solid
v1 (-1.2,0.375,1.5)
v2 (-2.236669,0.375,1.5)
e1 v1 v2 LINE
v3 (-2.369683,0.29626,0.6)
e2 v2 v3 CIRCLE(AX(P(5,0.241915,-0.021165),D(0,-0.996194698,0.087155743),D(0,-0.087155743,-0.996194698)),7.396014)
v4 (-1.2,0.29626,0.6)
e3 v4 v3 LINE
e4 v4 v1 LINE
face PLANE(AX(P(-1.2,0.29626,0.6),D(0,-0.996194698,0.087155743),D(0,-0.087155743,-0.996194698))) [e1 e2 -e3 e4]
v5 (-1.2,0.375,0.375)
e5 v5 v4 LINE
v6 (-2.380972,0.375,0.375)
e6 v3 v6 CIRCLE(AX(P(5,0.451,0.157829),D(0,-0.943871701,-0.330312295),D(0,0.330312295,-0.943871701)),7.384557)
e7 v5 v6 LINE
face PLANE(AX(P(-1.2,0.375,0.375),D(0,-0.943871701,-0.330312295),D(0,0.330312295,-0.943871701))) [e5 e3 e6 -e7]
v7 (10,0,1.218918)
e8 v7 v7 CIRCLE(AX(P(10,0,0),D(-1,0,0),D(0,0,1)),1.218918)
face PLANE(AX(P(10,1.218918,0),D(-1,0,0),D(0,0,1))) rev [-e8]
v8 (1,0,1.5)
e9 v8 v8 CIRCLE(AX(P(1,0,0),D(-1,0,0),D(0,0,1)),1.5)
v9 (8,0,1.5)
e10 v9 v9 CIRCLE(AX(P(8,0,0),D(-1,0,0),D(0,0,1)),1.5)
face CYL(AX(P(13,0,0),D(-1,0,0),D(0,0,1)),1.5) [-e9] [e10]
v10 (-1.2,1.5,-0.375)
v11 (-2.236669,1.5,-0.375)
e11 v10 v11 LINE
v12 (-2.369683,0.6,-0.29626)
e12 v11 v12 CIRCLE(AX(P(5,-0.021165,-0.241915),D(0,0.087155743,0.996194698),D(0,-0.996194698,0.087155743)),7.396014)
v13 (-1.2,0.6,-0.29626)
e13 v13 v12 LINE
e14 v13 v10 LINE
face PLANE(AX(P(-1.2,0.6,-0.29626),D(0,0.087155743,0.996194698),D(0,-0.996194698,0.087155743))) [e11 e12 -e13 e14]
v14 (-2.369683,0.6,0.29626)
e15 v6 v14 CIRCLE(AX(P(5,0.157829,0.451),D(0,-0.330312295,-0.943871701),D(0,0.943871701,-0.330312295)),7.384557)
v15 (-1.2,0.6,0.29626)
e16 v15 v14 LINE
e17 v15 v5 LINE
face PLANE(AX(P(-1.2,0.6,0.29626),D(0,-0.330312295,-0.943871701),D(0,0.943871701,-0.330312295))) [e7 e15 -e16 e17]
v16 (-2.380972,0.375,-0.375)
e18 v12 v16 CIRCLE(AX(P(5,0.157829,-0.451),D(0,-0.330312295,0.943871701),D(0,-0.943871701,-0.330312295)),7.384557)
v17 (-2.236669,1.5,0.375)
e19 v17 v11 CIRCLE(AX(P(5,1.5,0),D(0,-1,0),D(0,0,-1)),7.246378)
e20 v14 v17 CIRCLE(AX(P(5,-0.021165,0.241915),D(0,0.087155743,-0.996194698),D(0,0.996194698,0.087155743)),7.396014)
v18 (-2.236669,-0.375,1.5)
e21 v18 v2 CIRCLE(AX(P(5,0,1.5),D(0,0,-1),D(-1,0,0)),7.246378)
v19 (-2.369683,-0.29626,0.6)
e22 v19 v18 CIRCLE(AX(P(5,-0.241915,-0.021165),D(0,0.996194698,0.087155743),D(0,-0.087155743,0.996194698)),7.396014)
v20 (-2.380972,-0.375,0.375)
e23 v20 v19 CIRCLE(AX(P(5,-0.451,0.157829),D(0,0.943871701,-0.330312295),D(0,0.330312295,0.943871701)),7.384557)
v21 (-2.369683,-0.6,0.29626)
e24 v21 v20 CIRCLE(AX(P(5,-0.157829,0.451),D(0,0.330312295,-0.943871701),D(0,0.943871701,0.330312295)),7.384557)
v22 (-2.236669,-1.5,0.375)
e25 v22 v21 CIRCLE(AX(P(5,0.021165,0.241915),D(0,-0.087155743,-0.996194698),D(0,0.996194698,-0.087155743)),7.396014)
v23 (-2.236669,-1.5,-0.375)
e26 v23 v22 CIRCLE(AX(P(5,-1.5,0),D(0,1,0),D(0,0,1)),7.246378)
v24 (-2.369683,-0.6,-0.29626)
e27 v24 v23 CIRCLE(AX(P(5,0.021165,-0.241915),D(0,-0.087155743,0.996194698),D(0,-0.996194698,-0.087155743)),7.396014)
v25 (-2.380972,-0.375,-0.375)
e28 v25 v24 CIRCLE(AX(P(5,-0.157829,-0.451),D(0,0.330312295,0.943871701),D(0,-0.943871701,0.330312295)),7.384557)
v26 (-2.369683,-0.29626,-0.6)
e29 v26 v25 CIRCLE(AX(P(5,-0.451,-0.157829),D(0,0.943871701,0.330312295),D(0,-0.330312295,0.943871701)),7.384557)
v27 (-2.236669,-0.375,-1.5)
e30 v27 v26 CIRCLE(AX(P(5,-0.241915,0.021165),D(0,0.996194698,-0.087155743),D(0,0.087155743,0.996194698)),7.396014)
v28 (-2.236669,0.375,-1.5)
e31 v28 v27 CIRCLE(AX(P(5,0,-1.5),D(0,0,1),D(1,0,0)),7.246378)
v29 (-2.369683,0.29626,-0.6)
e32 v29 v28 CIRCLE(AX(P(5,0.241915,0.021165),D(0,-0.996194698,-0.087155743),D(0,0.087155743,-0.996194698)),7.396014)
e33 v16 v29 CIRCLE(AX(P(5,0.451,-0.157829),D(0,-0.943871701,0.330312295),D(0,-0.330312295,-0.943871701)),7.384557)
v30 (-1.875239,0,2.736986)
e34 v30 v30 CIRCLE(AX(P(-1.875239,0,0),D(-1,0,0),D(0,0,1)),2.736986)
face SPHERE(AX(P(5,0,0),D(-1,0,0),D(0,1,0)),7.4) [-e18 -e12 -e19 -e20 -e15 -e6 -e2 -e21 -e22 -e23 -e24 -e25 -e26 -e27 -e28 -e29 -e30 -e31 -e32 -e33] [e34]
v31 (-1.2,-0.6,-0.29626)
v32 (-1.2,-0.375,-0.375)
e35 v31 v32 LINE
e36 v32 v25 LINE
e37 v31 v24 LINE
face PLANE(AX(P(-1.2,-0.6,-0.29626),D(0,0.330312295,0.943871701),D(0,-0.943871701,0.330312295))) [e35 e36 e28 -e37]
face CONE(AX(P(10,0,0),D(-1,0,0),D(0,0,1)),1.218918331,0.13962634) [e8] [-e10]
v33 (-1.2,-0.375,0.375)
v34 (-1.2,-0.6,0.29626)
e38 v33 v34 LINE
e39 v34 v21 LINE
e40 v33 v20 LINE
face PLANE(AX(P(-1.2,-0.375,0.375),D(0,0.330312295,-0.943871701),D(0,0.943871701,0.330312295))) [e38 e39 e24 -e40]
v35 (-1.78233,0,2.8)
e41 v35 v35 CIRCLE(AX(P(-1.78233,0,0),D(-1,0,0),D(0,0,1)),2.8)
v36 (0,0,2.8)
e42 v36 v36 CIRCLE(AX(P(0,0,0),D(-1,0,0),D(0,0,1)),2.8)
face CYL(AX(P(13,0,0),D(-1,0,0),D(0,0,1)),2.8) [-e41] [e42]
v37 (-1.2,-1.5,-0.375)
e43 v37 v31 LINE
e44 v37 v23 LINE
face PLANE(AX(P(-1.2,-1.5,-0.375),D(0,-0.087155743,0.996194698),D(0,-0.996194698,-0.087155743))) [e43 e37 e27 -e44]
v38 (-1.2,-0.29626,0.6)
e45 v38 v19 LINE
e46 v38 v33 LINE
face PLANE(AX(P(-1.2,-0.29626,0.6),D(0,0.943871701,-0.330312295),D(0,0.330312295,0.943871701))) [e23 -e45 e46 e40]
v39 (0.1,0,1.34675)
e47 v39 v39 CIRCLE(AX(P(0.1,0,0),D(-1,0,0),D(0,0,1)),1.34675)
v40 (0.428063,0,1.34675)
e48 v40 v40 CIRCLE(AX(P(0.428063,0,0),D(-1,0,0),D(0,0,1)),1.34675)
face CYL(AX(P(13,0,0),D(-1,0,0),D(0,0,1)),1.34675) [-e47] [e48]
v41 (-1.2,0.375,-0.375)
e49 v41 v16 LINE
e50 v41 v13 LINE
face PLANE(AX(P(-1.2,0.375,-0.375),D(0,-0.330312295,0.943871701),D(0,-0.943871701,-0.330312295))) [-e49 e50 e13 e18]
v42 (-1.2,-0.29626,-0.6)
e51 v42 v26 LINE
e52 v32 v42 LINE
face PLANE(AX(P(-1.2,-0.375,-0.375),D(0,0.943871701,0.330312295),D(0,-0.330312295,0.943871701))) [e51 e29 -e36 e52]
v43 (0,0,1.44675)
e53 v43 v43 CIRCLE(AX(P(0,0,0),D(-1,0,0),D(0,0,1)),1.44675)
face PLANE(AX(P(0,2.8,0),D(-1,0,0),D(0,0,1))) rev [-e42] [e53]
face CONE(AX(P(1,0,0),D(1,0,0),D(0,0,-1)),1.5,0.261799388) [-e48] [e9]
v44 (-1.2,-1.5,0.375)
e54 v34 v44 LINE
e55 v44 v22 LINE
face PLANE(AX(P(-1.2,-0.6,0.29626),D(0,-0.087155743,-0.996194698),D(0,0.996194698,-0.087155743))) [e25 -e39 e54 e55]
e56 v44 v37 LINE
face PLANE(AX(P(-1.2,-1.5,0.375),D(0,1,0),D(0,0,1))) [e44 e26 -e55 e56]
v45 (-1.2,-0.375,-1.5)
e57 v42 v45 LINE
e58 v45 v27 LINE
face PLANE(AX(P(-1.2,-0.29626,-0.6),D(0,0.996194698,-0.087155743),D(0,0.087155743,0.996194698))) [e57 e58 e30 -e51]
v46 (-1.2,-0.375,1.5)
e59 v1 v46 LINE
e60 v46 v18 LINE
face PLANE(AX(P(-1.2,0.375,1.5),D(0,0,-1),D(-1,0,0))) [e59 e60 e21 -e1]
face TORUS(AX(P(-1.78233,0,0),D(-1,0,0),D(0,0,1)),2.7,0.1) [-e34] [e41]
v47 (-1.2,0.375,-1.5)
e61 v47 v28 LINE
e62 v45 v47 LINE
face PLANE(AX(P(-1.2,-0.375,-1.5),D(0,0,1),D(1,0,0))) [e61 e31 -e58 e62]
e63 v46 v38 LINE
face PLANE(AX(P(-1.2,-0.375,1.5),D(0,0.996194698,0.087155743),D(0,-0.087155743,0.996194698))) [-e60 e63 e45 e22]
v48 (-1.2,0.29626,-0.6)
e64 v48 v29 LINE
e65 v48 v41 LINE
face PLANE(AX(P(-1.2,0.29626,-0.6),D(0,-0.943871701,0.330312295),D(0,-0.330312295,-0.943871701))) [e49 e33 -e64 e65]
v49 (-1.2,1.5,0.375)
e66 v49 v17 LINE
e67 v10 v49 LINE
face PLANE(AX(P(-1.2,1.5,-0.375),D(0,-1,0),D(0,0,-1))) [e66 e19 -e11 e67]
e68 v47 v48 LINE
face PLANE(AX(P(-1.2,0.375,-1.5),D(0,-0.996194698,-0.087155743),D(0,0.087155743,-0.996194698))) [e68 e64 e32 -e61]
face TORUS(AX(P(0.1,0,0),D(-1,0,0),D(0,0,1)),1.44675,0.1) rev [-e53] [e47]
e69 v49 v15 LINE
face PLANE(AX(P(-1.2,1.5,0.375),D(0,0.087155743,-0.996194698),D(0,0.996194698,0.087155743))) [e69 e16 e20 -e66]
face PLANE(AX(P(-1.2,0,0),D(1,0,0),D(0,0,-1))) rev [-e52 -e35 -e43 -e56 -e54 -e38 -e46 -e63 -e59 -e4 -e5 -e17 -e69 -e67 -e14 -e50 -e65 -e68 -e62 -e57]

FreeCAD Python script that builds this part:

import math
import FreeCAD as App
import Part
import Sketcher
Q = App.Units.Quantity


def add_polygon(sketch, points):
    """Adds a closed chain of lines whose ends are joined by coincident constraints."""
    first, n = sketch.GeometryCount, len(points)
    for a, b in zip(points, points[1:] + points[:1]):
        sketch.addGeometry(Part.LineSegment(App.Vector(*a, 0), App.Vector(*b, 0)), False)
    for i in range(n):
        sketch.addConstraint(Sketcher.Constraint("Coincident", first + i, 2, first + (i + 1) % n, 1))

doc = App.newDocument("Part")
body = doc.addObject("PartDesign::Body", "Body")

sketch1 = doc.addObject("Sketcher::SketchObject", "Sketch")
body.addObject(sketch1)
sketch1.AttachmentSupport = (doc.XY_Plane, [""])
sketch1.MapMode = "FlatFace"
sketch1.addGeometry(Part.LineSegment(App.Vector(0, 2.8, 0), App.Vector(-1.78233, 2.8, 0)), False)
sketch1.addGeometry(Part.ArcOfCircle(Part.Circle(App.Vector(-1.78233, 2.7, 0), App.Vector(0, 0, 1), 0.1), math.radians(90), math.radians(158.292831)), False)
sketch1.addGeometry(Part.ArcOfCircle(Part.Circle(App.Vector(5, 0, 0), App.Vector(0, 0, 1), 7.4), math.radians(158.292831), math.radians(180)), False)
sketch1.addGeometry(Part.LineSegment(App.Vector(-2.4, 0, 0), App.Vector(10, 0, 0)), False)
sketch1.addGeometry(Part.LineSegment(App.Vector(10, 0, 0), App.Vector(10, 1.218918, 0)), False)
sketch1.addGeometry(Part.LineSegment(App.Vector(10, 1.218918, 0), App.Vector(8, 1.5, 0)), False)
sketch1.addGeometry(Part.LineSegment(App.Vector(8, 1.5, 0), App.Vector(1, 1.5, 0)), False)
sketch1.addGeometry(Part.LineSegment(App.Vector(1, 1.5, 0), App.Vector(0.428063, 1.34675, 0)), False)
sketch1.addGeometry(Part.LineSegment(App.Vector(0.428063, 1.34675, 0), App.Vector(0.1, 1.34675, 0)), False)
sketch1.addGeometry(Part.ArcOfCircle(Part.Circle(App.Vector(0.1, 1.44675, 0), App.Vector(0, 0, 1), 0.1), math.radians(180), math.radians(270)), False)
sketch1.addGeometry(Part.LineSegment(App.Vector(0, 1.44675, 0), App.Vector(0, 2.8, 0)), False)
sketch1.addConstraint(Sketcher.Constraint("Tangent", 0, 2, 1, 1))
sketch1.addConstraint(Sketcher.Constraint("Tangent", 1, 2, 2, 1))
sketch1.addConstraint(Sketcher.Constraint("Coincident", 2, 2, 3, 1))
sketch1.addConstraint(Sketcher.Constraint("Coincident", 3, 2, 4, 1))
sketch1.addConstraint(Sketcher.Constraint("Coincident", 4, 2, 5, 1))
sketch1.addConstraint(Sketcher.Constraint("Coincident", 5, 2, 6, 1))
sketch1.addConstraint(Sketcher.Constraint("Coincident", 6, 2, 7, 1))
sketch1.addConstraint(Sketcher.Constraint("Coincident", 7, 2, 8, 1))
sketch1.addConstraint(Sketcher.Constraint("Tangent", 8, 2, 9, 2))
sketch1.addConstraint(Sketcher.Constraint("Tangent", 9, 1, 10, 1))
sketch1.addConstraint(Sketcher.Constraint("Coincident", 10, 2, 0, 1))
sketch1.addConstraint(Sketcher.Constraint("Horizontal", 0))
sketch1.addConstraint(Sketcher.Constraint("Horizontal", 3))
sketch1.addConstraint(Sketcher.Constraint("Vertical", 4))
sketch1.addConstraint(Sketcher.Constraint("Horizontal", 6))
sketch1.addConstraint(Sketcher.Constraint("Horizontal", 8))
sketch1.addConstraint(Sketcher.Constraint("Vertical", 10))
sketch1.addConstraint(Sketcher.Constraint("Equal", 1, 9))
sketch1.addConstraint(Sketcher.Constraint("PointOnObject", 2, 3, -1))
sketch1.addConstraint(Sketcher.Constraint("PointOnObject", 2, 2, -1))
sketch1.addConstraint(Sketcher.Constraint("PointOnObject", 9, 1, -2))
sketch1.addConstraint(Sketcher.Constraint("Radius", 1, 0.1))
sketch1.addConstraint(Sketcher.Constraint("Radius", 2, 7.4))
sketch1.addConstraint(Sketcher.Constraint("DistanceX", 6, 2, 6, 1, 7.0))
sketch1.addConstraint(Sketcher.Constraint("Angle", 5, Q("172 deg")))
sketch1.addConstraint(Sketcher.Constraint("Angle", 7, Q("-165 deg")))
sketch1.addConstraint(Sketcher.Constraint("DistanceX", 3, 1, 3, 2, 12.4))
sketch1.addConstraint(Sketcher.Constraint("DistanceX", -1, 1, 2, 3, 5.0))
sketch1.addConstraint(Sketcher.Constraint("DistanceX", -1, 1, 5, 2, 8.0))
sketch1.addConstraint(Sketcher.Constraint("DistanceY", -1, 1, 1, 3, 2.7))
sketch1.addConstraint(Sketcher.Constraint("DistanceY", -1, 1, 5, 2, 1.5))
sketch1.addConstraint(Sketcher.Constraint("DistanceY", 10, 1, 10, 2, 1.35325))
revolution = doc.addObject("PartDesign::Revolution", "Revolution")
body.addObject(revolution)
revolution.Profile = sketch1
revolution.ReferenceAxis = (sketch1, ["H_Axis"])
revolution.Angle = 360

sketch2 = doc.addObject("Sketcher::SketchObject", "Sketch001")
body.addObject(sketch2)
sketch2.AttachmentSupport = (doc.YZ_Plane, [""])
sketch2.MapMode = "FlatFace"
sketch2.AttachmentOffset = App.Placement(App.Vector(0, 0, -2.4), App.Rotation())
add_polygon(sketch2, [(0.375, 1.5), (-0.375, 1.5), (-0.29626, 0.6), (-0.375, 0.375), (-0.6, 0.29626), (-1.5, 0.375), (-1.5, -0.375), (-0.6, -0.29626), (-0.375, -0.375), (-0.29626, -0.6), (-0.375, -1.5), (0.375, -1.5), (0.29626, -0.6), (0.375, -0.375), (0.6, -0.29626), (1.5, -0.375), (1.5, 0.375), (0.6, 0.29626), (0.375, 0.375), (0.29626, 0.6)])
sketch2.addConstraint(Sketcher.Constraint("Horizontal", 0))
sketch2.addConstraint(Sketcher.Constraint("Vertical", 5))
sketch2.addConstraint(Sketcher.Constraint("Horizontal", 10))
sketch2.addConstraint(Sketcher.Constraint("Vertical", 15))
sketch2.addConstraint(Sketcher.Constraint("Symmetric", 0, 2, 10, 2, -1, 1))
sketch2.addConstraint(Sketcher.Constraint("Symmetric", 1, 2, 11, 2, -1, 1))
sketch2.addConstraint(Sketcher.Constraint("Symmetric", 2, 2, 12, 2, -1, 1))
sketch2.addConstraint(Sketcher.Constraint("Symmetric", 3, 2, 13, 2, -1, 1))
sketch2.addConstraint(Sketcher.Constraint("Symmetric", 4, 2, 14, 2, -1, 1))
sketch2.addConstraint(Sketcher.Constraint("Symmetric", 6, 2, 16, 2, -1, 1))
sketch2.addConstraint(Sketcher.Constraint("Symmetric", 7, 2, 17, 2, -1, 1))
sketch2.addConstraint(Sketcher.Constraint("Symmetric", 8, 2, 18, 2, -1, 1))
sketch2.addConstraint(Sketcher.Constraint("Symmetric", 8, 2, 11, 2, -2))
sketch2.addConstraint(Sketcher.Constraint("Symmetric", 7, 2, 12, 2, -2))
sketch2.addConstraint(Sketcher.Constraint("Symmetric", 6, 2, 13, 2, -2))
sketch2.addConstraint(Sketcher.Constraint("Perpendicular", 1, 6))
sketch2.addConstraint(Sketcher.Constraint("Perpendicular", 2, 7))
sketch2.addConstraint(Sketcher.Constraint("Perpendicular", 4, 9))
sketch2.addConstraint(Sketcher.Constraint("Perpendicular", 11, 16))
sketch2.addConstraint(Sketcher.Constraint("Perpendicular", 14, 19))
sketch2.addConstraint(Sketcher.Constraint("Horizontal", 2, 2, 4, 2))
sketch2.addConstraint(Sketcher.Constraint("Horizontal", 5, 2, 7, 2))
sketch2.addConstraint(Sketcher.Constraint("Vertical", 0, 2, 2, 2))
sketch2.addConstraint(Sketcher.Constraint("Equal", 10, 5))
sketch2.addConstraint(Sketcher.Constraint("Equal", 2, 3))
sketch2.addConstraint(Sketcher.Constraint("Angle", 1, Q("-85 deg")))
sketch2.addConstraint(Sketcher.Constraint("DistanceX", 0, 2, 0, 1, 0.75))
sketch2.addConstraint(Sketcher.Constraint("DistanceY", -1, 1, 0, 2, 1.5))
sketch2.addConstraint(Sketcher.Constraint("DistanceY", -1, 1, 1, 2, 0.6))
pocket1 = doc.addObject("PartDesign::Pocket", "Pocket")
body.addObject(pocket1)
pocket1.Profile = sketch2
pocket1.Type = "TwoLengths"
pocket1.Length = 1.2
pocket1.Length2 = 1.2
pocket1.Reversed = True

doc.recompute()
